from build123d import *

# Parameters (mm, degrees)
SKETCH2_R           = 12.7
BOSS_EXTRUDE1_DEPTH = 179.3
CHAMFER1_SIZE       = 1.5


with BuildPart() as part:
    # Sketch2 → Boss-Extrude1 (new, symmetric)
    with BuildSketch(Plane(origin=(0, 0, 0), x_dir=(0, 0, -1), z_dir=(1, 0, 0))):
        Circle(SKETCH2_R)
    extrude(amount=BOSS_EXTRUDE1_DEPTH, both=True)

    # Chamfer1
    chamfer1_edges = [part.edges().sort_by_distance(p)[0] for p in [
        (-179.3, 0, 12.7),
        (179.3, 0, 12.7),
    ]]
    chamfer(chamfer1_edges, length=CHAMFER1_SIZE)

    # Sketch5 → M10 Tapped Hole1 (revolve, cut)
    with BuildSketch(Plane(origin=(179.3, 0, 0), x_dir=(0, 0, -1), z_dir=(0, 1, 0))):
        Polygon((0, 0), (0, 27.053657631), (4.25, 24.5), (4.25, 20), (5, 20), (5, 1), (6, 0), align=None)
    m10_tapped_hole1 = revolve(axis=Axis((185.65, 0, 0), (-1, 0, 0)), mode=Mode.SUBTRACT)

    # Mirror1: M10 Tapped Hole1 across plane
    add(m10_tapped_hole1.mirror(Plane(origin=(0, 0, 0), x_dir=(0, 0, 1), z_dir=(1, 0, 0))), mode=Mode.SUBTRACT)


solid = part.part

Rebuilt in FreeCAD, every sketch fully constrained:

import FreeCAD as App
import Part
import Sketcher

V = App.Vector
Q = App.Units.Quantity


def edges_at(feature, points):
    """Names of the edges that pass closest to the given points."""
    edges = feature.Shape.Edges
    near = lambda p: min(range(len(edges)), key=lambda i: edges[i].distToShape(Part.Vertex(*p))[0])
    return sorted({f"Edge{near(p) + 1}" for p in points})

doc = App.newDocument("Part")
body = doc.addObject("PartDesign::Body", "Body")

sketch1 = doc.addObject("Sketcher::SketchObject", "Sketch")
body.addObject(sketch1)
sketch1.AttachmentSupport = (doc.YZ_Plane, [""])
sketch1.MapMode = "FlatFace"
sketch1.addGeometry(Part.Circle(V(0, 0, 0), V(0, 0, 1), 13), False)
sketch1.addConstraint([
    Sketcher.Constraint("Coincident", 0, 3, -1, 1),
    Sketcher.Constraint("Diameter", 0, 25.4),
])
pad1 = doc.addObject("PartDesign::Pad", "Pad")
body.addObject(pad1)
pad1.Profile = sketch1
pad1.Length = 358.6
pad1.Midplane = True
doc.recompute()

chamfer = doc.addObject("PartDesign::Chamfer", "Chamfer")
body.addObject(chamfer)
chamfer.Base = (pad1, edges_at(pad1, [(-179.3, 0, 12.7), (179.3, 0, 12.7)]))
chamfer.Size = 1.5

sketch2 = doc.addObject("Sketcher::SketchObject", "Sketch001")
body.addObject(sketch2)
sketch2.AttachmentSupport = (doc.XZ_Plane, [""])
sketch2.MapMode = "FlatFace"
sketch2.addGeometry([
    Part.LineSegment(V(152.2, 0, 0), V(179.3, 0, 0)),
    Part.LineSegment(V(179.3, 0, 0), V(179.3, -6, 0)),
    Part.LineSegment(V(179.3, -6, 0), V(178.3, -5, 0)),
    Part.LineSegment(V(178.3, -5, 0), V(159.3, -5, 0)),
    Part.LineSegment(V(159.3, -5, 0), V(159.3, -4.2, 0)),
    Part.LineSegment(V(159.3, -4.2, 0), V(154.8, -4.2, 0)),
    Part.LineSegment(V(154.8, -4.2, 0), V(152.2, 0, 0)),
], False)
sketch2.addConstraint([
    Sketcher.Constraint("Coincident", 0, 2, 1, 1),
    Sketcher.Constraint("Coincident", 1, 2, 2, 1),
    Sketcher.Constraint("Coincident", 2, 2, 3, 1),
    Sketcher.Constraint("Coincident", 3, 2, 4, 1),
    Sketcher.Constraint("Coincident", 4, 2, 5, 1),
    Sketcher.Constraint("Coincident", 5, 2, 6, 1),
    Sketcher.Constraint("Coincident", 6, 2, 0, 1),
    Sketcher.Constraint("Horizontal", 0),
    Sketcher.Constraint("Vertical", 1),
    Sketcher.Constraint("Horizontal", 3),
    Sketcher.Constraint("Vertical", 4),
    Sketcher.Constraint("Horizontal", 5),
    Sketcher.Constraint("PointOnObject", 0, 2, -1),
    Sketcher.Constraint("DistanceX", 3, 2, 3, 1, 19.0),
    Sketcher.Constraint("DistanceY", 1, 2, 1, 1, 6.0),
    Sketcher.Constraint("Angle", 2, Q("135 deg")),
    Sketcher.Constraint("Angle", 6, Q("121 deg")),
    Sketcher.Constraint("DistanceX", 5, 2, 5, 1, 4.5),
    Sketcher.Constraint("DistanceY", 2, 2, -1, 1, 5.0),
    Sketcher.Constraint("DistanceY", 4, 1, 4, 2, 0.75),
    Sketcher.Constraint("DistanceX", -1, 1, 0, 2, 179.3),
])
groove = doc.addObject("PartDesign::Groove", "Groove")
body.addObject(groove)
groove.Profile = sketch2
groove.ReferenceAxis = (sketch2, ["H_Axis"])
groove.Angle = 360
doc.recompute()

mirrored = doc.addObject("PartDesign::Mirrored", "Mirrored")
body.addObject(mirrored)
mirrored.Originals = [groove]
mirrored.MirrorPlane = (doc.YZ_Plane, [""])
body.Tip = mirrored

doc.recompute()
